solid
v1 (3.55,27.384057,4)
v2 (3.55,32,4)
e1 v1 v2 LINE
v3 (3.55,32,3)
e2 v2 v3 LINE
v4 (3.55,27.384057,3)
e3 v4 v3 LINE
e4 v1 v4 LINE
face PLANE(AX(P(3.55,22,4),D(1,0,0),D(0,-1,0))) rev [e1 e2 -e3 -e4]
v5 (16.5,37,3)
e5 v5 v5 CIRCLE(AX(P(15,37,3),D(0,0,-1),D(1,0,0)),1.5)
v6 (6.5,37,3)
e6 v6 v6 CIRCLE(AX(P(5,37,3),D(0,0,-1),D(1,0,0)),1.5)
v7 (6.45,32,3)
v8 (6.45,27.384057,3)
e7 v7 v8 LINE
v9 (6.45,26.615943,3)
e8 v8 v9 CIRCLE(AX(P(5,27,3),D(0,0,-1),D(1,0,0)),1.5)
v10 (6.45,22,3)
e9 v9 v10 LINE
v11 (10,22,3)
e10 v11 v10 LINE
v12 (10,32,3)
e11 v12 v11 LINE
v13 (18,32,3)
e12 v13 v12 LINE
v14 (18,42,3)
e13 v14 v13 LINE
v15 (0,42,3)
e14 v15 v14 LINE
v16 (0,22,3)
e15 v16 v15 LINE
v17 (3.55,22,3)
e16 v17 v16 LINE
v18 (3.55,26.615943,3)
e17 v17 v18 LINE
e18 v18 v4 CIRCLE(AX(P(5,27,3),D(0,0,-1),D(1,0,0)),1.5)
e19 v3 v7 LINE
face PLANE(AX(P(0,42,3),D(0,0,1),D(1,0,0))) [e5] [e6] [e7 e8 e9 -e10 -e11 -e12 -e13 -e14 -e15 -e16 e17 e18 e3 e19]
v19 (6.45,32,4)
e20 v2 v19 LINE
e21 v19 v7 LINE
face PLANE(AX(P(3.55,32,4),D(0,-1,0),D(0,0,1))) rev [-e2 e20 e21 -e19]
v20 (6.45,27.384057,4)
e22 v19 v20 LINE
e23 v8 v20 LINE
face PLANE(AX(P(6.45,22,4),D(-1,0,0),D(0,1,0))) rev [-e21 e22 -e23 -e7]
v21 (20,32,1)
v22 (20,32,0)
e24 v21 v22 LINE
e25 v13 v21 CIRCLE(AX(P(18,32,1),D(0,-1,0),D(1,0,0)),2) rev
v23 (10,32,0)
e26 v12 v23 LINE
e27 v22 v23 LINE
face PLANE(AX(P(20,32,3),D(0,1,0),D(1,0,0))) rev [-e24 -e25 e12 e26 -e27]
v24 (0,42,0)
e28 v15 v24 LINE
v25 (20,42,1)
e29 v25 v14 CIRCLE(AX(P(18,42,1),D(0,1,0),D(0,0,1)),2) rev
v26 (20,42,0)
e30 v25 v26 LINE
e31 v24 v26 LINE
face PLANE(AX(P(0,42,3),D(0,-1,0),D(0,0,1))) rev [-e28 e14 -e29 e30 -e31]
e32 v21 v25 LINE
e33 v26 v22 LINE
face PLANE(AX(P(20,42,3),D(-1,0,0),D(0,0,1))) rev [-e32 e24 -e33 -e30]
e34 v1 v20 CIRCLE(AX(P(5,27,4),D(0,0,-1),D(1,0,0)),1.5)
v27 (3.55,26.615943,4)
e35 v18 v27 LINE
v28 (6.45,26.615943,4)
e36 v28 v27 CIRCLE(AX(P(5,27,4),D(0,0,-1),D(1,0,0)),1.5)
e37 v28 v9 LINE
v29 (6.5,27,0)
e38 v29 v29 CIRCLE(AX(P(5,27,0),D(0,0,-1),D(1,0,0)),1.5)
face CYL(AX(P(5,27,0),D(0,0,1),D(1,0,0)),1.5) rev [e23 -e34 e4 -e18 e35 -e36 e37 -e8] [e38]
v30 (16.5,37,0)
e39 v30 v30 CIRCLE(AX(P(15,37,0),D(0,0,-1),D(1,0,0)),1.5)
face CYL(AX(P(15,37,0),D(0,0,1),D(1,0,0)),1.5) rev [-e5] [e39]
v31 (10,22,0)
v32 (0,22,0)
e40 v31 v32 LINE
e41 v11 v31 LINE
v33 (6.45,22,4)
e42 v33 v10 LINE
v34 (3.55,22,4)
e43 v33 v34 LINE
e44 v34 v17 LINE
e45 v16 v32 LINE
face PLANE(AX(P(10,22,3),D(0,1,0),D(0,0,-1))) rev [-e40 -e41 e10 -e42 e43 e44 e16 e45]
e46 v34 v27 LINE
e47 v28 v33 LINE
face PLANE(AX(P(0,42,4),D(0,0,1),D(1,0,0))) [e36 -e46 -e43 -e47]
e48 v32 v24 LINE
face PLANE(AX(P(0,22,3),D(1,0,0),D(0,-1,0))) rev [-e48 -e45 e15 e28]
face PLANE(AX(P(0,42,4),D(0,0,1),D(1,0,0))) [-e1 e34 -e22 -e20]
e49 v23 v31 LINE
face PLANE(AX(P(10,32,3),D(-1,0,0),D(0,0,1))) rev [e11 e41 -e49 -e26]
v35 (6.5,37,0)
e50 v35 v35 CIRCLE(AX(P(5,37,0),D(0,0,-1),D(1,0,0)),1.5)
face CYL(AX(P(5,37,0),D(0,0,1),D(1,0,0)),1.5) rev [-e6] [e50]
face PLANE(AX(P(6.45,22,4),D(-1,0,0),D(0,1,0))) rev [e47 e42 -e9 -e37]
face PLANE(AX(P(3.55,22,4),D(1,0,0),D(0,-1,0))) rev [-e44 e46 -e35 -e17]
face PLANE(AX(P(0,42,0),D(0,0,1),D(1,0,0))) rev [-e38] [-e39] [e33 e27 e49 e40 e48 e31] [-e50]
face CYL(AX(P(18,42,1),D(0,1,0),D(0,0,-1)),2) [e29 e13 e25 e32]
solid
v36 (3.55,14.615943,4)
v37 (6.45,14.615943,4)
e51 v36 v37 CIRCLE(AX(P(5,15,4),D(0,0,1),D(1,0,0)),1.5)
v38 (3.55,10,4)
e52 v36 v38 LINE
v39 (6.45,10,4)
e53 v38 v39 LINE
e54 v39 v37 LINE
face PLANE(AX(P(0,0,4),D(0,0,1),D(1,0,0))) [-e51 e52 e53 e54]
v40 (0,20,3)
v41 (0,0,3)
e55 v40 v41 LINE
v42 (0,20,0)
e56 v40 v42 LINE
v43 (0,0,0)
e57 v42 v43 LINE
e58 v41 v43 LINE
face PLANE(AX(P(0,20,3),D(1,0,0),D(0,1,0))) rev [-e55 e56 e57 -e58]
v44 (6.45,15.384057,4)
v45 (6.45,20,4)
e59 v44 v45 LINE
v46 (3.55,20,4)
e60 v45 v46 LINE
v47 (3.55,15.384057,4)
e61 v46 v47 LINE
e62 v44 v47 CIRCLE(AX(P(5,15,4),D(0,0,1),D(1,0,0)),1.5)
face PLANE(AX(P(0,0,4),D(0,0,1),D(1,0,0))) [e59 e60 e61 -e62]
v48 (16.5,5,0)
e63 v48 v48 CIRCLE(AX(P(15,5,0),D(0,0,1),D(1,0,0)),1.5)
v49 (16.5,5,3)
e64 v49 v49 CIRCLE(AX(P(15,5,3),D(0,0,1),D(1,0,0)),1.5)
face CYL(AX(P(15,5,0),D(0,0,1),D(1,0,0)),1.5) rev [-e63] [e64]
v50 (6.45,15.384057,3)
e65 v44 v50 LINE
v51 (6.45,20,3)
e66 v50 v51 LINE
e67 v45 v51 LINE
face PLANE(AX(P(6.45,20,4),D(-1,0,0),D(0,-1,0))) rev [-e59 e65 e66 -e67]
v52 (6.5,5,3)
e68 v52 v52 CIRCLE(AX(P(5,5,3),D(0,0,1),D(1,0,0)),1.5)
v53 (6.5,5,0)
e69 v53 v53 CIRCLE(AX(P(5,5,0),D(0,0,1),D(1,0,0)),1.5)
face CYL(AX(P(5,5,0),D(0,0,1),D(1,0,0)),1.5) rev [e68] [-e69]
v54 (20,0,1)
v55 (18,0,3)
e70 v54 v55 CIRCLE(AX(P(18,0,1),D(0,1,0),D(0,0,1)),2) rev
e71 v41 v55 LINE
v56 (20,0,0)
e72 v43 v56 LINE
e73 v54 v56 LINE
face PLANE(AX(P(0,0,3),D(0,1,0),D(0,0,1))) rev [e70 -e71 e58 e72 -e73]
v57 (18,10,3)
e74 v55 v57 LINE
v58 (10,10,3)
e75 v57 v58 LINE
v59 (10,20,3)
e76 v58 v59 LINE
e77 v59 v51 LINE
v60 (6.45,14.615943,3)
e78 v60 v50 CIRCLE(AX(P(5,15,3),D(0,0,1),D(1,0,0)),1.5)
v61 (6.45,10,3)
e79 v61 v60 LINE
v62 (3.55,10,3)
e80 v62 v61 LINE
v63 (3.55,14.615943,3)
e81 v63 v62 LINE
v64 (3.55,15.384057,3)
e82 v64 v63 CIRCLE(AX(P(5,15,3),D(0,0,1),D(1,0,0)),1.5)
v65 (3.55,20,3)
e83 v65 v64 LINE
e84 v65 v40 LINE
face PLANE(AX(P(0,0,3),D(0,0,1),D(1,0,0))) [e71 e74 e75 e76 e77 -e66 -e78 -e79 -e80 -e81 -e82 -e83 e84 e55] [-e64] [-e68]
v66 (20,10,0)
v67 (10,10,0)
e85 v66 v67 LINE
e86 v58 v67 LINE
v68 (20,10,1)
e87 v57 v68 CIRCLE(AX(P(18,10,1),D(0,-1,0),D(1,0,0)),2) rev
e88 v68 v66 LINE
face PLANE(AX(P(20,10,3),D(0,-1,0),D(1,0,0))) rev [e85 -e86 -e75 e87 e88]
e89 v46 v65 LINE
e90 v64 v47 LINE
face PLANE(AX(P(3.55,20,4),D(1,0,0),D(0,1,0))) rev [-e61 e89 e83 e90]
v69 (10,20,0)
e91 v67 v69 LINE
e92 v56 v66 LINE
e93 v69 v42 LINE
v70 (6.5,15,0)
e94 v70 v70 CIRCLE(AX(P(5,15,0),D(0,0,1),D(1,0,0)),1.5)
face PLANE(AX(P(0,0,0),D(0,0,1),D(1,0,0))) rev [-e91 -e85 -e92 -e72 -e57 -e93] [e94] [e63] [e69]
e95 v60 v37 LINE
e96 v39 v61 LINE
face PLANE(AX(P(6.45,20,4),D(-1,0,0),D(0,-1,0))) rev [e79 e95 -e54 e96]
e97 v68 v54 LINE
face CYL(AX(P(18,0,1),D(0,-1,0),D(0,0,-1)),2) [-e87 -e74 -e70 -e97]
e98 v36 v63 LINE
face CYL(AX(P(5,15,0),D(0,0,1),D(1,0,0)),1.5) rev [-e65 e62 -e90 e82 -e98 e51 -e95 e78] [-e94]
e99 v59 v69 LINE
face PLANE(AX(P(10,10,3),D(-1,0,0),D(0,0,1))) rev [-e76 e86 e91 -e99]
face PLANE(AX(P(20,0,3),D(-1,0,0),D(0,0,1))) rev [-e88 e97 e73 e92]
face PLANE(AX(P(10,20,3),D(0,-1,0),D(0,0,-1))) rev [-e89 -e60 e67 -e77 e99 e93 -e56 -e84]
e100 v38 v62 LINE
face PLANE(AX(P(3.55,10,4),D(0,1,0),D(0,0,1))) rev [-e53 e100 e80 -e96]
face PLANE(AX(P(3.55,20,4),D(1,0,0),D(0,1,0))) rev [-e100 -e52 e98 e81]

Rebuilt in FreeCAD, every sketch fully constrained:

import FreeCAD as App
import Part
import Sketcher
from FreeCAD import Vector
Q = App.Units.Quantity


def edges_at(feature, points):
    """Names of the edges that pass closest to the given points."""
    edges = feature.Shape.Edges
    near = lambda p: min(range(len(edges)), key=lambda i: edges[i].distToShape(Part.Vertex(*p))[0])
    return sorted({f"Edge{near(p) + 1}" for p in points})


def add_polygon(sketch, points):
    """Adds a closed chain of lines whose ends are joined by coincident constraints."""
    first, n = sketch.GeometryCount, len(points)
    for a, b in zip(points, points[1:] + points[:1]):
        sketch.addGeometry(Part.LineSegment(App.Vector(*a, 0), App.Vector(*b, 0)), False)
    for i in range(n):
        sketch.addConstraint(Sketcher.Constraint("Coincident", first + i, 2, first + (i + 1) % n, 1))

doc = App.newDocument("Part")
body = doc.addObject("PartDesign::Body", "Body")

sketch1 = body.newObject("Sketcher::SketchObject", "Sketch")
sketch1.AttachmentSupport = (doc.getObject("XY_Plane"), [""])
sketch1.MapMode = "FlatFace"
add_polygon(sketch1, [(0, 0), (20, 0), (20, 10), (10, 10), (10, 20), (0, 20)])
sketch1.addConstraint([
    Sketcher.Constraint("Horizontal", 0),
    Sketcher.Constraint("Vertical", 1),
    Sketcher.Constraint("Horizontal", 2),
    Sketcher.Constraint("Vertical", 3),
    Sketcher.Constraint("Horizontal", 4),
    Sketcher.Constraint("Vertical", 5),
    Sketcher.Constraint("Coincident", 5, 2, -1, 1),
    Sketcher.Constraint("Equal", 2, 4),
    Sketcher.Constraint("Equal", 4, 1),
    Sketcher.Constraint("Equal", 1, 3),
    Sketcher.Constraint("DistanceX", 0, 1, 0, 2, Q("20 mm")),
])
pad1 = body.newObject("PartDesign::Pad", "Pad")
pad1.Profile = sketch1
pad1.Length = 3

sketch2 = body.newObject("Sketcher::SketchObject", "Sketch001")
sketch2.AttachmentSupport = (doc.getObject("XY_Plane"), [""])
sketch2.MapMode = "FlatFace"
sketch2.AttachmentOffset = App.Placement(Vector(0, 0, 3), App.Rotation())
add_polygon(sketch2, [(3.55, 20), (3.55, 10), (6.45, 10), (6.45, 20)])
sketch2.addConstraint([
    Sketcher.Constraint("Vertical", 0),
    Sketcher.Constraint("Horizontal", 1),
    Sketcher.Constraint("Vertical", 2),
    Sketcher.Constraint("Horizontal", 3),
    Sketcher.Constraint("DistanceY", 0, 2, 0, 1, Q("10 mm")),
    Sketcher.Constraint("DistanceX", 1, 1, 1, 2, Q("2.9 mm")),
    Sketcher.Constraint("DistanceY", -1, 1, 0, 2, Q("10 mm")),
    Sketcher.Constraint("DistanceX", -1, 1, 0, 2, Q("3.55 mm")),
])
pad2 = body.newObject("PartDesign::Pad", "Pad001")
pad2.Profile = sketch2
pad2.Length = 1

sketch3 = body.newObject("Sketcher::SketchObject", "Sketch002")
sketch3.AttachmentSupport = (doc.getObject("XY_Plane"), [""])
sketch3.MapMode = "FlatFace"
sketch3.AttachmentOffset = App.Placement(Vector(0, 0, 4), App.Rotation())
sketch3.addGeometry([
    Part.Circle(Vector(5, 15, 0), Vector(0, 0, 1), 1.5),
    Part.Circle(Vector(5, 5, 0), Vector(0, 0, 1), 1.5),
    Part.Circle(Vector(15, 5, 0), Vector(0, 0, 1), 1.5),
], False)
sketch3.addConstraint([
    Sketcher.Constraint("Equal", 0, 1),
    Sketcher.Constraint("Equal", 1, 2),
    Sketcher.Constraint("Horizontal", 1, 3, 2, 3),
    Sketcher.Constraint("Vertical", 0, 3, 1, 3),
    Sketcher.Constraint("Diameter", 0, Q("3 mm")),
    Sketcher.Constraint("DistanceX", -1, 1, 0, 3, Q("5 mm")),
    Sketcher.Constraint("DistanceY", -1, 1, 0, 3, Q("15 mm")),
    Sketcher.Constraint("DistanceY", -1, 1, 1, 3, Q("5 mm")),
    Sketcher.Constraint("DistanceX", -1, 1, 2, 3, Q("15 mm")),
])
pocket1 = body.newObject("PartDesign::Pocket", "Pocket")
pocket1.Profile = sketch3
pocket1.Type = "ThroughAll"
doc.recompute()

fillet = body.newObject("PartDesign::Fillet", "Fillet")
fillet.Base = (pocket1, edges_at(pocket1, [(20, 5, 3)]))
fillet.Radius = 2
body2 = doc.addObject("PartDesign::Body", "Body001")
doc.recompute()

mirroring = doc.addObject("Part::Mirroring", "Mirroring")
mirroring.Source = body
mirroring.Base = Vector(0, 21, 0)
mirroring.Normal = Vector(0, 1, 0)
body2.BaseFeature = mirroring
doc.recompute()
mirroring.Visibility = False

doc.recompute()
